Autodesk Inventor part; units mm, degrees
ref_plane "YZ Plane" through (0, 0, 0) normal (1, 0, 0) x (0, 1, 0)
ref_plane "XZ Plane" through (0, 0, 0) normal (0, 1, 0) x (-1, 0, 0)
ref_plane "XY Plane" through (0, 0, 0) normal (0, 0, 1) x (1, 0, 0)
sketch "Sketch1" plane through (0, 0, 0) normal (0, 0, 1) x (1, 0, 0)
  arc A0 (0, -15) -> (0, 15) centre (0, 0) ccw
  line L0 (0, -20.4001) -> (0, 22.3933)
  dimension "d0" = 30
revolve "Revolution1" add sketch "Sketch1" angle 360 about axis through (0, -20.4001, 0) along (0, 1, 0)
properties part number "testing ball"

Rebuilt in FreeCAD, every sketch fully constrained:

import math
import FreeCAD as App
import Part
import Sketcher
from FreeCAD import Vector
Q = App.Units.Quantity

doc = App.newDocument("Part")
body = doc.addObject("PartDesign::Body", "Body")

sketch1 = body.newObject("Sketcher::SketchObject", "Sketch")
sketch1.AttachmentSupport = (doc.getObject("XY_Plane"), [""])
sketch1.MapMode = "FlatFace"
sketch1.addGeometry(Part.LineSegment(Vector(0, 15, 0), Vector(0, -15, 0)), False)
sketch1.addGeometry(Part.ArcOfCircle(Part.Circle(Vector(0, 0, 0), Vector(0, 0, 1), 15), math.radians(-90), math.radians(90)), False)
sketch1.addConstraint(Sketcher.Constraint("Coincident", 0, 1, 1, 2))
sketch1.addConstraint(Sketcher.Constraint("Coincident", 1, 1, 0, 2))
sketch1.addConstraint(Sketcher.Constraint("Vertical", 0))
sketch1.addConstraint(Sketcher.Constraint("Coincident", 1, 3, -1, 1))
sketch1.addConstraint(Sketcher.Constraint("PointOnObject", 0, 1, -2))
sketch1.addConstraint(Sketcher.Constraint("Radius", 1, Q("15 mm")))
revolution = body.newObject("PartDesign::Revolution", "Revolution")
revolution.Profile = sketch1
revolution.ReferenceAxis = (sketch1, ["V_Axis"])
revolution.Angle = 360

doc.recompute()
